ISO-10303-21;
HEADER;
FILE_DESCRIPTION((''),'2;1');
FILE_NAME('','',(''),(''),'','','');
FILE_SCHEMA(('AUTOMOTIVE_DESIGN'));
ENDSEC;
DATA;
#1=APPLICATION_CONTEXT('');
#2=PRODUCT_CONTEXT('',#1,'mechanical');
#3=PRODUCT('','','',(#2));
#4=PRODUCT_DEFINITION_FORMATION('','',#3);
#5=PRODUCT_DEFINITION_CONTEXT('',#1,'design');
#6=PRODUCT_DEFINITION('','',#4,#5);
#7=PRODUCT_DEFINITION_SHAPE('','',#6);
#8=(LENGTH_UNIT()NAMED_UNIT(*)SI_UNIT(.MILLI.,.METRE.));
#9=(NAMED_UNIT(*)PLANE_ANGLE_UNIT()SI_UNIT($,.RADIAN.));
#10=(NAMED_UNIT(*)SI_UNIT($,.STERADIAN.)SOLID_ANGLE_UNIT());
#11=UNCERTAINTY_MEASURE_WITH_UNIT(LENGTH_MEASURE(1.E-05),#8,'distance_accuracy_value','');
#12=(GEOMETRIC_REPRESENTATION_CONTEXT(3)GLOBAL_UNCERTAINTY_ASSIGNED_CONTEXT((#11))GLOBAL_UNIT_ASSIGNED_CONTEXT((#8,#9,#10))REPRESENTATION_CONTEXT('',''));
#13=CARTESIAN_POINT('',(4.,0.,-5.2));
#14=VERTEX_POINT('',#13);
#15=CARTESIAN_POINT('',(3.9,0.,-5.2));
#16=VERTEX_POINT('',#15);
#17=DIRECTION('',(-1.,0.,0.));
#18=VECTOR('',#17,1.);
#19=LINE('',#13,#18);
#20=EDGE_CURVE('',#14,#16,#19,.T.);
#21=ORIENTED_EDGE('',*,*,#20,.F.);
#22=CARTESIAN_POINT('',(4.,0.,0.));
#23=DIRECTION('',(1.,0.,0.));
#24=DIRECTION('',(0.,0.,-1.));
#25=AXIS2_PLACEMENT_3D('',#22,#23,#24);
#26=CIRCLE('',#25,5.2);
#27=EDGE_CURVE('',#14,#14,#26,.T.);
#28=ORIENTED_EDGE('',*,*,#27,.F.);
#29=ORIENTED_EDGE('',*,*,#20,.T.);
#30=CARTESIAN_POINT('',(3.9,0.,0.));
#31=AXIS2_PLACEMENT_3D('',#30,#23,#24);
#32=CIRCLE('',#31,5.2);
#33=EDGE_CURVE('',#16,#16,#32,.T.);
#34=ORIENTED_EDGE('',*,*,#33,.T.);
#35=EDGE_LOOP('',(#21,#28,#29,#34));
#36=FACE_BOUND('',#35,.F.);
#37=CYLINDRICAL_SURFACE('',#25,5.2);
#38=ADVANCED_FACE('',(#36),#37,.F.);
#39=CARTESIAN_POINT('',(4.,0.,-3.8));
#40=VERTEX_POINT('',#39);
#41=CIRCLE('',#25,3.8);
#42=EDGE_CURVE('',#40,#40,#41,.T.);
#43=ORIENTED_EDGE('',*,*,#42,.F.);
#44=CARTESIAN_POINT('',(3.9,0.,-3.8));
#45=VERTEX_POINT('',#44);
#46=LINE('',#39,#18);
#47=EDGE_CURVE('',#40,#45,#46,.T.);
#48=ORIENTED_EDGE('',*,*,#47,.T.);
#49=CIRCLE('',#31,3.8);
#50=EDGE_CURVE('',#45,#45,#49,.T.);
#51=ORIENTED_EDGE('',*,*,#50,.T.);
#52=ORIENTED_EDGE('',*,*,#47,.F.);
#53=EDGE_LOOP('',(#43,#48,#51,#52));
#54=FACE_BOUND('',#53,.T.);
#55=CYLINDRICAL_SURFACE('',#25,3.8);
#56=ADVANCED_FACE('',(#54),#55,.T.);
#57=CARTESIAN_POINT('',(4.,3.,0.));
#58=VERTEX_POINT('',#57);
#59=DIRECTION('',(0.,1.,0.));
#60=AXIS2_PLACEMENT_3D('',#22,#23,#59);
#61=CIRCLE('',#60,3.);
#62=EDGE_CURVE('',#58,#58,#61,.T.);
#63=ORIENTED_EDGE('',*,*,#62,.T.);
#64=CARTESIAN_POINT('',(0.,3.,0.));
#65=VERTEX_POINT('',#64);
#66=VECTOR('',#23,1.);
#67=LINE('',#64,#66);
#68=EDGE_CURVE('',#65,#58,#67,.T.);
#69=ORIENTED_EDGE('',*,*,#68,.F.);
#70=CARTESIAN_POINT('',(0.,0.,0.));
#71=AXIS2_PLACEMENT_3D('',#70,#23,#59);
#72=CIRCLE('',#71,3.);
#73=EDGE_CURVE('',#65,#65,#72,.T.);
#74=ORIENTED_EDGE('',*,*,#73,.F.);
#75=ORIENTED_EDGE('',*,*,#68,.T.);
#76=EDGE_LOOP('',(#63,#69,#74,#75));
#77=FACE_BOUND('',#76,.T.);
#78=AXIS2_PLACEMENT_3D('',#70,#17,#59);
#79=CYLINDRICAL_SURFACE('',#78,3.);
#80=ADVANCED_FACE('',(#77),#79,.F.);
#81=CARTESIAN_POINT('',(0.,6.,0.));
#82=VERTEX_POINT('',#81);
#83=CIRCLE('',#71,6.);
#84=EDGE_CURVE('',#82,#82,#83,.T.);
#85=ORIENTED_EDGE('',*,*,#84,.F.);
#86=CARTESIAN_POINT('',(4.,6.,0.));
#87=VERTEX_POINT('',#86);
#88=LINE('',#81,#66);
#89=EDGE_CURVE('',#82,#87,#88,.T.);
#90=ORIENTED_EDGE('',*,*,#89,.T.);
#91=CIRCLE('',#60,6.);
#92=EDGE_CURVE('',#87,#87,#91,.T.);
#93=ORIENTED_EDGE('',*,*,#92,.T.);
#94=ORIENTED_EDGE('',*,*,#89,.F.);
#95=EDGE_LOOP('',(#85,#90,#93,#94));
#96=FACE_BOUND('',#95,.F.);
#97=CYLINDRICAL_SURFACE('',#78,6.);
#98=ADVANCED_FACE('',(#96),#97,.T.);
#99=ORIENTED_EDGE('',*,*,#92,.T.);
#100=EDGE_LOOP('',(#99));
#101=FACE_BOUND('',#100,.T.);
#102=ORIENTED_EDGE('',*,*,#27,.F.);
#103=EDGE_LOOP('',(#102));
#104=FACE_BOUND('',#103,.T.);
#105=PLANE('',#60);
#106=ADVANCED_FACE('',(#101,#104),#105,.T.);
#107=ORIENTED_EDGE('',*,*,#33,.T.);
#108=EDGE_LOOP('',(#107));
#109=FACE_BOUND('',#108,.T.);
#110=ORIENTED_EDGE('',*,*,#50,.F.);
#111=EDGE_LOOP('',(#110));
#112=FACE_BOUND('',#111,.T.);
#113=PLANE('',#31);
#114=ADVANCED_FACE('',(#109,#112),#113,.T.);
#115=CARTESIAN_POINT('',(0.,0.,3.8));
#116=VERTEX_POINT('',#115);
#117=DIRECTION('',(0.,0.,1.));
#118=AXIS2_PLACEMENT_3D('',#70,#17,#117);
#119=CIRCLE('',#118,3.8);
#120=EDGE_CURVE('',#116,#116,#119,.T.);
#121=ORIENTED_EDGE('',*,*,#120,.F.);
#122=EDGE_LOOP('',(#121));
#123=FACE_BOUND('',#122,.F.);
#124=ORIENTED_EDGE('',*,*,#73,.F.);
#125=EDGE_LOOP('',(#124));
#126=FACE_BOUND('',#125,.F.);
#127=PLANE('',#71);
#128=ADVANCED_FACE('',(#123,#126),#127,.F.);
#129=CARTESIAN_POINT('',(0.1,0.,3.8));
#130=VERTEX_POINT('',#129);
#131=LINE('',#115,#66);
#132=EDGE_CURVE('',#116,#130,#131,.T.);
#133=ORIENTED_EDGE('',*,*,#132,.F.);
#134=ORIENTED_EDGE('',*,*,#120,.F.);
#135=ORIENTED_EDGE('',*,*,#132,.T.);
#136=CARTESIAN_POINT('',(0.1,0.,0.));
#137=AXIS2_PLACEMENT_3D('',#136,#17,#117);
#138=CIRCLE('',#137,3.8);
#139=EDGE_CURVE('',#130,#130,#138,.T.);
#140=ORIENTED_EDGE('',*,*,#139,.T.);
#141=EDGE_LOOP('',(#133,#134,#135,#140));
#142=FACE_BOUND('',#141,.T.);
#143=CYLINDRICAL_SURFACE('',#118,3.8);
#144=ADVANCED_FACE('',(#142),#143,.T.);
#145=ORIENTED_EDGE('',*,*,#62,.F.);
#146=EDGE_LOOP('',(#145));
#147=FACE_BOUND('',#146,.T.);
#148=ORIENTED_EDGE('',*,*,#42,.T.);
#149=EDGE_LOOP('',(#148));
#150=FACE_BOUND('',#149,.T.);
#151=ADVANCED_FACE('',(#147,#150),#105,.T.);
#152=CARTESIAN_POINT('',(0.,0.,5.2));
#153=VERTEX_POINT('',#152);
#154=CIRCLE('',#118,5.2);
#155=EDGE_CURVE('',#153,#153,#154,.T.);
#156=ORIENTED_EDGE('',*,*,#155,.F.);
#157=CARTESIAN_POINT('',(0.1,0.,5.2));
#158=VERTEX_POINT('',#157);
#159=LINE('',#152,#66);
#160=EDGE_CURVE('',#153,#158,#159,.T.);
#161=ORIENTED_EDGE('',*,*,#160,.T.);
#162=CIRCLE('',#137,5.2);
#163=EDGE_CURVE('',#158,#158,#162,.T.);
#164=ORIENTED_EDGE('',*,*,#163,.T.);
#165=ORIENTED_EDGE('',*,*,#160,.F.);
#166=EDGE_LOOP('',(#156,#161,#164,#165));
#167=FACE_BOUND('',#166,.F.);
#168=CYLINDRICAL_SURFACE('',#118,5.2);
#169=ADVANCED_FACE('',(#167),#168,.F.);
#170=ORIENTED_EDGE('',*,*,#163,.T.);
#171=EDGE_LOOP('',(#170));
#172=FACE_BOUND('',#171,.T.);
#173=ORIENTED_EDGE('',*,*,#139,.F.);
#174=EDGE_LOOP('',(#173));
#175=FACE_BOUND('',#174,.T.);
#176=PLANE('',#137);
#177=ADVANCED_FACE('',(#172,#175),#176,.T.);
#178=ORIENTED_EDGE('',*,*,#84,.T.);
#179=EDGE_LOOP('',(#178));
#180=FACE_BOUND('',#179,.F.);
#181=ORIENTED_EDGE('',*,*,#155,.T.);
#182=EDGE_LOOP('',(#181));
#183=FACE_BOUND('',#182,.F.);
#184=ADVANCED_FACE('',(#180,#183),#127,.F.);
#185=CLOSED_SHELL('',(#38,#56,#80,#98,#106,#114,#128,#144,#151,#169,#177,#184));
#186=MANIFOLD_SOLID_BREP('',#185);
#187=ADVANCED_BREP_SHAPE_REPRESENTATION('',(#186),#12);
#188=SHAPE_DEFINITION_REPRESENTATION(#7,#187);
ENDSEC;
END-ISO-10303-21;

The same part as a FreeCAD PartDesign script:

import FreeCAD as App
import Part
import Sketcher
from FreeCAD import Vector
Q = App.Units.Quantity

doc = App.newDocument("Part")
body = doc.addObject("PartDesign::Body", "Body")

# Sketch on YZ plane
sketch1 = body.newObject("Sketcher::SketchObject", "Sketch")
sketch1.AttachmentSupport = (doc.getObject("YZ_Plane"), [""])
sketch1.MapMode = "FlatFace"
sketch1.addGeometry([
    Part.Circle(Vector(0, 0, 0), Vector(0, 0, 1), 6),
    Part.Circle(Vector(0, 0, 0), Vector(0, 0, 1), 3),
], False)
sketch1.addConstraint([
    Sketcher.Constraint("Coincident", 0, 3, -1, 1),
    Sketcher.Constraint("Coincident", 1, 3, -1, 1),
    Sketcher.Constraint("Diameter", 0, Q("12 mm")),
    Sketcher.Constraint("Diameter", 1, Q("6 mm")),
])
pad1 = body.newObject("PartDesign::Pad", "Pad")
pad1.Profile = sketch1
pad1.Length = 4

# Sketch on YZ plane
sketch2 = body.newObject("Sketcher::SketchObject", "Sketch001")
sketch2.AttachmentSupport = (doc.getObject("YZ_Plane"), [""])
sketch2.MapMode = "FlatFace"
sketch2.addGeometry([
    Part.Circle(Vector(0, 0, 0), Vector(0, 0, 1), 5.2),
    Part.Circle(Vector(0, 0, 0), Vector(0, 0, 1), 3.8),
], False)
sketch2.addConstraint([
    Sketcher.Constraint("Coincident", 0, 3, -1, 1),
    Sketcher.Constraint("Coincident", 1, 3, -1, 1),
    Sketcher.Constraint("Diameter", 0, Q("10.4 mm")),
    Sketcher.Constraint("Diameter", 1, Q("7.6 mm")),
])
pocket1 = body.newObject("PartDesign::Pocket", "Pocket")
pocket1.Profile = sketch2
pocket1.Length = 0.1
pocket1.Reversed = True

# Sketch on YZ plane
sketch3 = body.newObject("Sketcher::SketchObject", "Sketch002")
sketch3.AttachmentSupport = (doc.getObject("YZ_Plane"), [""])
sketch3.MapMode = "FlatFace"
sketch3.AttachmentOffset = App.Placement(Vector(0, 0, 4), App.Rotation())
sketch3.addGeometry([
    Part.Circle(Vector(0, 0, 0), Vector(0, 0, 1), 5.2),
    Part.Circle(Vector(0, 0, 0), Vector(0, 0, 1), 3.8),
], False)
sketch3.addConstraint([
    Sketcher.Constraint("Coincident", 0, 3, -1, 1),
    Sketcher.Constraint("Coincident", 1, 3, -1, 1),
    Sketcher.Constraint("Diameter", 0, Q("10.4 mm")),
    Sketcher.Constraint("Diameter", 1, Q("7.6 mm")),
])
pocket2 = body.newObject("PartDesign::Pocket", "Pocket001")
pocket2.Profile = sketch3
pocket2.Length = 0.1

doc.recompute()
